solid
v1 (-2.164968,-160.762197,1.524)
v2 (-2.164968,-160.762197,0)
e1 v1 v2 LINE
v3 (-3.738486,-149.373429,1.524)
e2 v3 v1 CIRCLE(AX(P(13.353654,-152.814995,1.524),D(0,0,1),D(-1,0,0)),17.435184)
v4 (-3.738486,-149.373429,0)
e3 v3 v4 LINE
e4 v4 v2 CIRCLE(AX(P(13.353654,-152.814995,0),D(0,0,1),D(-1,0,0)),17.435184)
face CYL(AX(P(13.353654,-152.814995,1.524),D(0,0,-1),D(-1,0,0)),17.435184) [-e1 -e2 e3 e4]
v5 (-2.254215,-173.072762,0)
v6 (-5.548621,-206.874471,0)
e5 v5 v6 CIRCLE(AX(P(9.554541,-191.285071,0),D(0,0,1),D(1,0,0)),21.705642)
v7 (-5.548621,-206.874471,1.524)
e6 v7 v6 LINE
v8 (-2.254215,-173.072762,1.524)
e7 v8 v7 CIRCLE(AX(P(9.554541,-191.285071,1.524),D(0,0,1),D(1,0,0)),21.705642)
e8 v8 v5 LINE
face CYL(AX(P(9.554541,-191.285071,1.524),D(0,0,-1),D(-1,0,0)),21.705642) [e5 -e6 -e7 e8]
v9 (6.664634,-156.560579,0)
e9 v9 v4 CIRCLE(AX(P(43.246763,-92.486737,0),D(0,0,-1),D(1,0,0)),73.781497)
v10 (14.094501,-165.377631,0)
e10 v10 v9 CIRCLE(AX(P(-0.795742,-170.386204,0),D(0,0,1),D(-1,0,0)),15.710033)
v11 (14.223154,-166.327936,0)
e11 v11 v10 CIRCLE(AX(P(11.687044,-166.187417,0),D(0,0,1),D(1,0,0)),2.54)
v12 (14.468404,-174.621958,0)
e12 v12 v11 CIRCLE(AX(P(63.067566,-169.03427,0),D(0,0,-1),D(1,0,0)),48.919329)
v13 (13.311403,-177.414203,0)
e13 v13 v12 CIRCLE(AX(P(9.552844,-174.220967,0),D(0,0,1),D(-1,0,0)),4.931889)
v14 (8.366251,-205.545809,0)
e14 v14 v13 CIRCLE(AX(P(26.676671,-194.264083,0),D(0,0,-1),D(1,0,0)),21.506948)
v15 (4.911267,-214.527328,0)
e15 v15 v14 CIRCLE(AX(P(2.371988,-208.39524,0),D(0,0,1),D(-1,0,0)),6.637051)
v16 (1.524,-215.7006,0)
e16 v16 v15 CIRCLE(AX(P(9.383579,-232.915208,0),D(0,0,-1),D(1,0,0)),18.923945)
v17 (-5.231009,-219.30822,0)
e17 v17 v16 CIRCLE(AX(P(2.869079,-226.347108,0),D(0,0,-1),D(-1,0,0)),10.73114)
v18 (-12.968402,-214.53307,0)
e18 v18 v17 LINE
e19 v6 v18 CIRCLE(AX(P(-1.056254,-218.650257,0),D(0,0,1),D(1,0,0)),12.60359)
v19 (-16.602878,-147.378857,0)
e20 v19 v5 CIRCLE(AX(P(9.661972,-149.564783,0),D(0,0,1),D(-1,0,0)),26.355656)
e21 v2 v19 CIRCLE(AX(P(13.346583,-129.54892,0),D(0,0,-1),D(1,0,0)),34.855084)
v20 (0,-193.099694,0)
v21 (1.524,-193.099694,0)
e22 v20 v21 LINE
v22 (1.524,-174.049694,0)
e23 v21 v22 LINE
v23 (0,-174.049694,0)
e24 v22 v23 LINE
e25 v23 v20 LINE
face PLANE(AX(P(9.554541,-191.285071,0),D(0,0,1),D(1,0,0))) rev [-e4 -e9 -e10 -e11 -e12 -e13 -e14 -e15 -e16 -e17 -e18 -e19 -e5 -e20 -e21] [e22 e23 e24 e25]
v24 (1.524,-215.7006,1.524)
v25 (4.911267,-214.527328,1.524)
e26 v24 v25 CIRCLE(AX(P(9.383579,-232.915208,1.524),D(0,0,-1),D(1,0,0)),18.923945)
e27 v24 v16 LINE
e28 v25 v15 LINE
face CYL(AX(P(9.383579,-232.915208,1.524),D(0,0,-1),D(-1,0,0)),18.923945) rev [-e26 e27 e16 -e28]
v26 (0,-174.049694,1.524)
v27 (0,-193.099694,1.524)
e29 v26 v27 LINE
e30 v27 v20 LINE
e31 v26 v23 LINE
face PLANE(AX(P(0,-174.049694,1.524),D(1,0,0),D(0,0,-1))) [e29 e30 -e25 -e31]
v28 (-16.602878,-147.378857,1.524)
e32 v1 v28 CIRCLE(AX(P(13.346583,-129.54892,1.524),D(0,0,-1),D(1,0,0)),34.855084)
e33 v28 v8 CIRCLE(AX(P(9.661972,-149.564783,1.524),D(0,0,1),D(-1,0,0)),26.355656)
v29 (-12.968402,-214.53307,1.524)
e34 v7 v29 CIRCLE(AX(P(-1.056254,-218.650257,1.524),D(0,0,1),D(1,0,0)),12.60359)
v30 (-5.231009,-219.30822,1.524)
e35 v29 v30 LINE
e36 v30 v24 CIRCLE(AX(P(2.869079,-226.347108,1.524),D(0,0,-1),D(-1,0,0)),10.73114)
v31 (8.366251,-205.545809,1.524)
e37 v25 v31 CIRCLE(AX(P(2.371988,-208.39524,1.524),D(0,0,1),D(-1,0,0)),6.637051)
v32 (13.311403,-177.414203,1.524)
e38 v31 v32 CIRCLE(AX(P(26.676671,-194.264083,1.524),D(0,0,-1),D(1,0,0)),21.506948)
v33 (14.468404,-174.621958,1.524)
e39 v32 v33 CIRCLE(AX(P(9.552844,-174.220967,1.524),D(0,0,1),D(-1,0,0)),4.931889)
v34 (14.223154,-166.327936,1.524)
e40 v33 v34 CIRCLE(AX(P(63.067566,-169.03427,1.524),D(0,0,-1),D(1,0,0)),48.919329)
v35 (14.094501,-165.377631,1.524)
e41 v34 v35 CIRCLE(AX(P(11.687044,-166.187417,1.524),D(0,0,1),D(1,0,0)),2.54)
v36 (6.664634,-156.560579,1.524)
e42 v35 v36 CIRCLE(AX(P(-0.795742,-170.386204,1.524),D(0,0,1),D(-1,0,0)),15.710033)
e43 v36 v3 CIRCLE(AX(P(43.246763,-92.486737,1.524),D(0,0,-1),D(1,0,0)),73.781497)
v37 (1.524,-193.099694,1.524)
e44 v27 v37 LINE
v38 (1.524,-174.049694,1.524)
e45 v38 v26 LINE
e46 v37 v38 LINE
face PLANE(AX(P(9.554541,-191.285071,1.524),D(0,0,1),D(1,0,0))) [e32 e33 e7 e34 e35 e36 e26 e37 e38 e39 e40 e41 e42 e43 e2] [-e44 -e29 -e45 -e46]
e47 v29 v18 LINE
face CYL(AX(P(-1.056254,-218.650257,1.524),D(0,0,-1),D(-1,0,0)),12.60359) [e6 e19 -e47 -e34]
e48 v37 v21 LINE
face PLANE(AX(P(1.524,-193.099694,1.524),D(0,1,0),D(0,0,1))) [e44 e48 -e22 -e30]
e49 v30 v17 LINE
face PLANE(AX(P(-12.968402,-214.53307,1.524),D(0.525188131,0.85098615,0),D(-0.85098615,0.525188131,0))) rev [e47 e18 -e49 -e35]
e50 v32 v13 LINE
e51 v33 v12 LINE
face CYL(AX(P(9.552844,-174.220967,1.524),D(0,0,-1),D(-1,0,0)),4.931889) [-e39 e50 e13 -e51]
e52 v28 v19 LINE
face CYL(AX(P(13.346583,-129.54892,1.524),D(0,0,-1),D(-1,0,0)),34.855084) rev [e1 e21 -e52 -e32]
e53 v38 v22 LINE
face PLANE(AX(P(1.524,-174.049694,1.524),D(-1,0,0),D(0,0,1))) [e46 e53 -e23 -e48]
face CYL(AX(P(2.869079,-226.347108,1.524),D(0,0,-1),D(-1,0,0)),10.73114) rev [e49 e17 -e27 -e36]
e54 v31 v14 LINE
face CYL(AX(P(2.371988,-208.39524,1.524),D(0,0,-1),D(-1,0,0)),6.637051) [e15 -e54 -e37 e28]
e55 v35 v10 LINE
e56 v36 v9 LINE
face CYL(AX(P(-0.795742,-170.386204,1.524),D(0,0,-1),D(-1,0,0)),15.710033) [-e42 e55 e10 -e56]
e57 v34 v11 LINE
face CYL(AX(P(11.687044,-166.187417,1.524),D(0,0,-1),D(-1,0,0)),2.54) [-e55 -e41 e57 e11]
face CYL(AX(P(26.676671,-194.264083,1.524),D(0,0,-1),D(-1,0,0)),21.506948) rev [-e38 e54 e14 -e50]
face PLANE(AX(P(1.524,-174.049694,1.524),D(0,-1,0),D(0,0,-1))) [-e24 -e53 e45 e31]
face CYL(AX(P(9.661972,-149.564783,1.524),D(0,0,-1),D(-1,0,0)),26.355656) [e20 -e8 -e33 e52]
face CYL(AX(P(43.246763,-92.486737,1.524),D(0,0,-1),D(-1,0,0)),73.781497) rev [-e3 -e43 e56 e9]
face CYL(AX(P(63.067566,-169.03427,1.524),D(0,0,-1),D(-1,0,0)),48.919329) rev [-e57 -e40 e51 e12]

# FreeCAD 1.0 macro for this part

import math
import FreeCAD as App
import Part
import Sketcher
from FreeCAD import Vector
Q = App.Units.Quantity

doc = App.newDocument("Part")
params = doc.addObject("Spreadsheet::Sheet", "Params")
for row, (alias, value) in enumerate([
    ("sketch1_radius", "0.1 in"),
    ("sketch1_width", "0.06 in"),
    ("sketch1_height", "0.75 in"),
    ("pad1_length", "0.06 in"),
], start=1):
    params.set(f"A{row}", alias)
    params.set(f"B{row}", "=" + value)
    params.setAlias(f"B{row}", alias)

body = doc.addObject("PartDesign::Body", "Body")

# Sketch on XY plane
sketch1 = body.newObject("Sketcher::SketchObject", "Sketch")
sketch1.AttachmentSupport = (doc.getObject("XY_Plane"), [""])
sketch1.MapMode = "FlatFace"
sketch1.addGeometry(Part.LineSegment(Vector(-12.968402, -214.53307, 0), Vector(-5.231009, -219.30822, 0)), False)
sketch1.addGeometry(Part.ArcOfCircle(Part.Circle(Vector(2.869079, -226.347108, 0), Vector(0, 0, 1), 10.73114), math.radians(97.200597), math.radians(139.009718)), False)
sketch1.addGeometry(Part.ArcOfCircle(Part.Circle(Vector(9.383579, -232.915208, 0), Vector(0, 0, 1), 18.923945), math.radians(103.670086), math.radians(114.539757)), False)
sketch1.addGeometry(Part.ArcOfCircle(Part.Circle(Vector(2.371988, -208.39524, 0), Vector(0, 0, 1), 6.637051), math.radians(-67.505706), math.radians(25.424533)), False)
sketch1.addGeometry(Part.ArcOfCircle(Part.Circle(Vector(26.676671, -194.264083, 0), Vector(0, 0, 1), 21.506948), math.radians(128.421332), math.radians(211.638755)), False)
sketch1.addGeometry(Part.ArcOfCircle(Part.Circle(Vector(9.552844, -174.220967, 0), Vector(0, 0, 1), 4.931889), math.radians(-40.350912), math.radians(-4.663629)), False)
sketch1.addGeometry(Part.ArcOfCircle(Part.Circle(Vector(63.067566, -169.03427, 0), Vector(0, 0, 1), 48.919329), math.radians(176.828642), math.radians(186.558783)), False)
sketch1.addGeometry(Part.ArcOfCircle(Part.Circle(Vector(11.687044, -166.187417, 0), Vector(0, 0, 1), 2.54), math.radians(-3.171358), math.radians(18.591197)), False)
sketch1.addGeometry(Part.ArcOfCircle(Part.Circle(Vector(-0.795742, -170.386204, 0), Vector(0, 0, 1), 15.710033), math.radians(18.591197), math.radians(61.648481)), False)
sketch1.addGeometry(Part.ArcOfCircle(Part.Circle(Vector(43.246763, -92.486737, 0), Vector(0, 0, 1), 73.781497), math.radians(-129.554815), math.radians(-119.723646)), False)
sketch1.addGeometry(Part.ArcOfCircle(Part.Circle(Vector(13.353654, -152.814995, 0), Vector(0, 0, 1), 17.435184), math.radians(168.615507), math.radians(207.117323)), False)
sketch1.addGeometry(Part.ArcOfCircle(Part.Circle(Vector(13.346583, -129.54892, 0), Vector(0, 0, 1), 34.855084), math.radians(-149.233217), math.radians(-116.425245)), False)
sketch1.addGeometry(Part.ArcOfCircle(Part.Circle(Vector(9.661972, -149.564783, 0), Vector(0, 0, 1), 26.355656), math.radians(175.242449), math.radians(243.119565)), False)
sketch1.addGeometry(Part.ArcOfCircle(Part.Circle(Vector(9.554541, -191.285071, 0), Vector(0, 0, 1), 21.705642), math.radians(122.959143), math.radians(225.907617)), False)
sketch1.addGeometry(Part.ArcOfCircle(Part.Circle(Vector(-1.056254, -218.650257, 0), Vector(0, 0, 1), 12.60359), math.radians(110.881448), math.radians(160.93335)), False)
sketch1.addGeometry(Part.LineSegment(Vector(1.524, -193.099694, 0), Vector(0, -193.099694, 0)), False)
sketch1.addGeometry(Part.LineSegment(Vector(0, -193.099694, 0), Vector(0, -174.049694, 0)), False)
sketch1.addGeometry(Part.LineSegment(Vector(0, -174.049694, 0), Vector(1.524, -174.049694, 0)), False)
sketch1.addGeometry(Part.LineSegment(Vector(1.524, -174.049694, 0), Vector(1.524, -193.099694, 0)), False)
sketch1.addConstraint(Sketcher.Constraint("Coincident", 0, 2, 1, 2))
sketch1.addConstraint(Sketcher.Constraint("Coincident", 1, 1, 2, 2))
sketch1.addConstraint(Sketcher.Constraint("Coincident", 2, 1, 3, 1))
sketch1.addConstraint(Sketcher.Constraint("Coincident", 3, 2, 4, 2))
sketch1.addConstraint(Sketcher.Constraint("Coincident", 4, 1, 5, 1))
sketch1.addConstraint(Sketcher.Constraint("Coincident", 5, 2, 6, 2))
sketch1.addConstraint(Sketcher.Constraint("Tangent", 6, 1, 7, 1))
sketch1.addConstraint(Sketcher.Constraint("Tangent", 7, 2, 8, 1))
sketch1.addConstraint(Sketcher.Constraint("Coincident", 8, 2, 9, 2))
sketch1.addConstraint(Sketcher.Constraint("Coincident", 9, 1, 10, 1))
sketch1.addConstraint(Sketcher.Constraint("Coincident", 10, 2, 11, 2))
sketch1.addConstraint(Sketcher.Constraint("Coincident", 11, 1, 12, 1))
sketch1.addConstraint(Sketcher.Constraint("Coincident", 12, 2, 13, 1))
sketch1.addConstraint(Sketcher.Constraint("Coincident", 13, 2, 14, 1))
sketch1.addConstraint(Sketcher.Constraint("Coincident", 14, 2, 0, 1))
sketch1.addConstraint(Sketcher.Constraint("Coincident", 15, 2, 16, 1))
sketch1.addConstraint(Sketcher.Constraint("Coincident", 16, 2, 17, 1))
sketch1.addConstraint(Sketcher.Constraint("Coincident", 17, 2, 18, 1))
sketch1.addConstraint(Sketcher.Constraint("Coincident", 18, 2, 15, 1))
sketch1.addConstraint(Sketcher.Constraint("Horizontal", 15))
sketch1.addConstraint(Sketcher.Constraint("Vertical", 16))
sketch1.addConstraint(Sketcher.Constraint("Horizontal", 17))
sketch1.addConstraint(Sketcher.Constraint("Vertical", 18))
sketch1.addConstraint(Sketcher.Constraint("PointOnObject", 15, 2, -2))
sketch1.addConstraint(Sketcher.Constraint("Vertical", 1, 1, 17, 2))
sketch1.addConstraint(Sketcher.Constraint("Radius", 7, Q("0.1 in")))
sketch1.addConstraint(Sketcher.Constraint("DistanceX", 15, 2, 15, 1, Q("0.06 in")))
sketch1.addConstraint(Sketcher.Constraint("DistanceY", 16, 1, 16, 2, Q("0.75 in")))
sketch1.addConstraint(Sketcher.Constraint("Radius", 1, 10.73114))
sketch1.addConstraint(Sketcher.Constraint("Radius", 3, 6.637051))
sketch1.addConstraint(Sketcher.Constraint("Radius", 4, 21.506948))
sketch1.addConstraint(Sketcher.Constraint("Radius", 5, 4.931889))
sketch1.addConstraint(Sketcher.Constraint("Radius", 6, 48.919329))
sketch1.addConstraint(Sketcher.Constraint("Radius", 14, 12.60359))
sketch1.addConstraint(Sketcher.Constraint("Radius", 2, 18.923945))
sketch1.addConstraint(Sketcher.Constraint("Radius", 8, 15.710033))
sketch1.addConstraint(Sketcher.Constraint("Radius", 9, 73.781497))
sketch1.addConstraint(Sketcher.Constraint("Radius", 10, 17.435184))
sketch1.addConstraint(Sketcher.Constraint("Radius", 11, 34.855084))
sketch1.addConstraint(Sketcher.Constraint("Radius", 12, 26.355656))
sketch1.addConstraint(Sketcher.Constraint("Radius", 13, 21.705642))
sketch1.addConstraint(Sketcher.Constraint("DistanceY", 1, 1, -1, 1, 215.7006))
sketch1.addConstraint(Sketcher.Constraint("DistanceX", -1, 1, 7, 2, 14.094501))
sketch1.addConstraint(Sketcher.Constraint("DistanceX", 14, 2, -1, 1, 12.968402))
sketch1.addConstraint(Sketcher.Constraint("DistanceX", 1, 3, 2, 3, 6.5145))
sketch1.addConstraint(Sketcher.Constraint("DistanceY", 2, 3, 1, 3, 6.5681))
sketch1.addConstraint(Sketcher.Constraint("DistanceX", 5, 3, 7, 3, 2.134201))
sketch1.addConstraint(Sketcher.Constraint("DistanceY", 4, 1, 8, 3, 7.027999))
sketch1.addConstraint(Sketcher.Constraint("DistanceX", 4, 1, 5, 2, 1.157001))
sketch1.addConstraint(Sketcher.Constraint("DistanceX", 10, 3, 6, 1, 0.8695))
sketch1.addConstraint(Sketcher.Constraint("DistanceX", 10, 2, 8, 2, 8.829602))
sketch1.addConstraint(Sketcher.Constraint("DistanceY", 14, 2, 13, 2, 7.658598))
sketch1.addConstraint(Sketcher.Constraint("DistanceY", 3, 3, -1, 1, 208.39524))
sketch1.addConstraint(Sketcher.Constraint("DistanceX", -1, 1, 4, 3, 26.676671))
sketch1.addConstraint(Sketcher.Constraint("DistanceY", 6, 3, -1, 1, 169.03427))
sketch1.addConstraint(Sketcher.Constraint("DistanceY", 11, 3, -1, 1, 129.54892))
sketch1.addConstraint(Sketcher.Constraint("DistanceX", -1, 1, 12, 3, 9.661972))
sketch1.addConstraint(Sketcher.Constraint("DistanceX", -1, 1, 13, 3, 9.554541))
sketch1.addConstraint(Sketcher.Constraint("DistanceY", 13, 3, -1, 1, 191.285071))
sketch1.addConstraint(Sketcher.Constraint("DistanceX", 0, 2, -1, 1, 5.231009))
sketch1.addConstraint(Sketcher.Constraint("DistanceY", 2, 1, -1, 1, 214.527328))
sketch1.addConstraint(Sketcher.Constraint("DistanceX", -1, 1, 3, 2, 8.366251))
sketch1.addConstraint(Sketcher.Constraint("DistanceY", 5, 2, -1, 1, 174.621958))
sketch1.addConstraint(Sketcher.Constraint("DistanceY", 8, 2, -1, 1, 156.560579))
sketch1.addConstraint(Sketcher.Constraint("DistanceY", 9, 1, -1, 1, 149.373429))
sketch1.addConstraint(Sketcher.Constraint("DistanceX", 11, 1, -1, 1, 16.602878))
sketch1.addConstraint(Sketcher.Constraint("DistanceX", 13, 2, -1, 1, 5.548621))
sketch1.addConstraint(Sketcher.Constraint("DistanceX", 7, 3, 9, 3, 31.559718))
sketch1.addConstraint(Sketcher.Constraint("DistanceY", 16, 2, 8, 3, 3.66349))
sketch1.setExpression("Constraints[25]", "Params.sketch1_radius")
sketch1.setExpression("Constraints[26]", "Params.sketch1_width")
sketch1.setExpression("Constraints[27]", "Params.sketch1_height")
pad1 = body.newObject("PartDesign::Pad", "Pad")
pad1.Profile = sketch1
pad1.setExpression("Length", "Params.pad1_length")

doc.recompute()
